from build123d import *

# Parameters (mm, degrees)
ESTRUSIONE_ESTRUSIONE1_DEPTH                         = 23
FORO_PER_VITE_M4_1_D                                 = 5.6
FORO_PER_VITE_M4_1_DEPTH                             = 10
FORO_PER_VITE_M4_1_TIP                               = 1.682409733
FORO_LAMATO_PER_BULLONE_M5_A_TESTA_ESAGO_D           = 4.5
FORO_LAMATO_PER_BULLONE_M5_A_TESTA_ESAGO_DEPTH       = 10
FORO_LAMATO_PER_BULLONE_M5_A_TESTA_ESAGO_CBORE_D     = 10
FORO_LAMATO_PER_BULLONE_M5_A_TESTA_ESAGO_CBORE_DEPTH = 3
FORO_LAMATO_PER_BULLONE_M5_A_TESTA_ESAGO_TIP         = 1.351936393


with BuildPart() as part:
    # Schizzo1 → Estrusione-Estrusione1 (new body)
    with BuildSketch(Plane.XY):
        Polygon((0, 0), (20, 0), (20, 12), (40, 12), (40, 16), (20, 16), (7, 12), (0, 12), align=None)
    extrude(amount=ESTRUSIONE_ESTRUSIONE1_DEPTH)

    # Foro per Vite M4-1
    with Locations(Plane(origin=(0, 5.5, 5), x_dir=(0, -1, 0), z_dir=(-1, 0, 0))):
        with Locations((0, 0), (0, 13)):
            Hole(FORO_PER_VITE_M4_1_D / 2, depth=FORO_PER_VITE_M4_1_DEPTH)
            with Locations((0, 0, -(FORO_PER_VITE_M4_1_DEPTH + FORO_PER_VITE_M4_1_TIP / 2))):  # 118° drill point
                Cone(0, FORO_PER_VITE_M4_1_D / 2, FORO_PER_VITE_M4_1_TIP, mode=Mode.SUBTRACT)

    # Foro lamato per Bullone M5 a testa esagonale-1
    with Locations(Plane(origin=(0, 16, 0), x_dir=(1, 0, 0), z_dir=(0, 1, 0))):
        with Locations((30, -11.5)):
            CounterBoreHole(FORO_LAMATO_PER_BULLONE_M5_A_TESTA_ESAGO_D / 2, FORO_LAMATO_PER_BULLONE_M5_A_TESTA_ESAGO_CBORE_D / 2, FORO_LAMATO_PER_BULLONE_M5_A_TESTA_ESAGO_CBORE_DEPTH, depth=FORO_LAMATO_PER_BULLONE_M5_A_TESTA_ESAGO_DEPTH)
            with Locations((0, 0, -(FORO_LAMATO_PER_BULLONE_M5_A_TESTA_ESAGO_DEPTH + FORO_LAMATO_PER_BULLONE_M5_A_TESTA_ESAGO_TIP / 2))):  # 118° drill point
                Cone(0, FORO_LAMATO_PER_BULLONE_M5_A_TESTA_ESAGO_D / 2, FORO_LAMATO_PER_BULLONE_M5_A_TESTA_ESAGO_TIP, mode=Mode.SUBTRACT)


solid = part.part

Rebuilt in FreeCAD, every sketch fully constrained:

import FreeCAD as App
import Part
import Sketcher
from FreeCAD import Vector


def add_polygon(sketch, points):
    """Adds a closed chain of lines whose ends are joined by coincident constraints."""
    first, n = sketch.GeometryCount, len(points)
    for a, b in zip(points, points[1:] + points[:1]):
        sketch.addGeometry(Part.LineSegment(App.Vector(*a, 0), App.Vector(*b, 0)), False)
    for i in range(n):
        sketch.addConstraint(Sketcher.Constraint("Coincident", first + i, 2, first + (i + 1) % n, 1))

doc = App.newDocument("Part")
params = doc.addObject("Spreadsheet::Sheet", "Params")
for row, (alias, value) in enumerate([
    ("sketch1_width", "20 mm"),
    ("sketch1_width2", "7 mm"),
    ("sketch1_height", "12 mm"),
    ("sketch1_height2", "4 mm"),
    ("pad1_length", "23 mm"),
    ("sketch2_diameter", "5.6 mm"),
    ("hole_diameter", "5.6 mm"),
    ("hole_depth", "10 mm"),
    ("sketch3_diameter", "4.5 mm"),
    ("hole2_diameter", "4.5 mm"),
    ("hole2_depth", "10 mm"),
    ("hole2_cbore_diameter", "10 mm"),
    ("hole2_cbore_depth", "3 mm"),
], start=1):
    params.set(f"A{row}", alias)
    params.set(f"B{row}", "=" + value)
    params.setAlias(f"B{row}", alias)

body = doc.addObject("PartDesign::Body", "Body")

# Sketch on XY plane
sketch1 = body.newObject("Sketcher::SketchObject", "Sketch")
sketch1.AttachmentSupport = (doc.getObject("XY_Plane"), [""])
sketch1.MapMode = "FlatFace"
add_polygon(sketch1, [(0, 0), (20, 0), (20, 12), (40, 12), (40, 16), (20, 16), (7, 12), (0, 12)])  # lines 0-7
sketch1.addConstraint(Sketcher.Constraint("Horizontal", 0))
sketch1.addConstraint(Sketcher.Constraint("Vertical", 1))
sketch1.addConstraint(Sketcher.Constraint("Horizontal", 2))
sketch1.addConstraint(Sketcher.Constraint("Vertical", 3))
sketch1.addConstraint(Sketcher.Constraint("Horizontal", 4))
sketch1.addConstraint(Sketcher.Constraint("Horizontal", 6))
sketch1.addConstraint(Sketcher.Constraint("Vertical", 7))
sketch1.addConstraint(Sketcher.Constraint("Coincident", 7, 2, -1, 1))
sketch1.addConstraint(Sketcher.Constraint("Horizontal", 2, 2, 5, 2))
sketch1.addConstraint(Sketcher.Constraint("Vertical", 1, 2, 4, 2))
sketch1.addConstraint(Sketcher.Constraint("Equal", 0, 2))
sketch1.addConstraint(Sketcher.Constraint("DistanceX", 0, 1, 0, 2, 20.0))
sketch1.addConstraint(Sketcher.Constraint("DistanceX", 6, 2, 6, 1, 7.0))
sketch1.addConstraint(Sketcher.Constraint("DistanceY", 1, 1, 1, 2, 12.0))
sketch1.addConstraint(Sketcher.Constraint("DistanceY", 3, 1, 3, 2, 4.0))
sketch1.setExpression("Constraints[19]", "Params.sketch1_width")
sketch1.setExpression("Constraints[20]", "Params.sketch1_width2")
sketch1.setExpression("Constraints[21]", "Params.sketch1_height")
sketch1.setExpression("Constraints[22]", "Params.sketch1_height2")
pad1 = body.newObject("PartDesign::Pad", "Pad")
pad1.Profile = sketch1
pad1.setExpression("Length", "Params.pad1_length")

# Sketch on YZ plane
sketch2 = body.newObject("Sketcher::SketchObject", "Sketch001")
sketch2.AttachmentSupport = (doc.getObject("YZ_Plane"), [""])
sketch2.MapMode = "FlatFace"
sketch2.addGeometry(Part.Circle(Vector(5.5, 5, 0), Vector(0, 0, 1), 2.8), False)
sketch2.addGeometry(Part.Circle(Vector(5.5, 18, 0), Vector(0, 0, 1), 2.8), False)
sketch2.addConstraint(Sketcher.Constraint("Equal", 0, 1))
sketch2.addConstraint(Sketcher.Constraint("Vertical", 0, 3, 1, 3))
sketch2.addConstraint(Sketcher.Constraint("Diameter", 0, 5.6))
sketch2.addConstraint(Sketcher.Constraint("DistanceY", -1, 1, 0, 3, 5.0))
sketch2.addConstraint(Sketcher.Constraint("DistanceY", -1, 1, 1, 3, 18.0))
sketch2.addConstraint(Sketcher.Constraint("DistanceX", -1, 1, 0, 3, 5.5))
sketch2.setExpression("Constraints[2]", "Params.sketch2_diameter")
doc.recompute()
hole = body.newObject("PartDesign::Hole", "Hole")
hole.Profile = sketch2
hole.ThreadType = "None"
hole.setExpression("Diameter", "Params.hole_diameter")
hole.DepthType = "Dimension"
hole.setExpression("Depth", "Params.hole_depth")
hole.DrillPoint = "Angled"
hole.DrillPointAngle = 118
hole.Reversed = True

# Sketch on XZ plane
sketch3 = body.newObject("Sketcher::SketchObject", "Sketch002")
sketch3.AttachmentSupport = (doc.getObject("XZ_Plane"), [""])
sketch3.MapMode = "FlatFace"
sketch3.AttachmentOffset = App.Placement(Vector(0, 0, -16), App.Rotation())
sketch3.addGeometry(Part.Circle(Vector(30, 11.5, 0), Vector(0, 0, 1), 2.25), False)
sketch3.addConstraint(Sketcher.Constraint("Diameter", 0, 4.5))
sketch3.addConstraint(Sketcher.Constraint("DistanceX", -1, 1, 0, 3, 30.0))
sketch3.addConstraint(Sketcher.Constraint("DistanceY", -1, 1, 0, 3, 11.5))
sketch3.setExpression("Constraints[0]", "Params.sketch3_diameter")
doc.recompute()
hole2 = body.newObject("PartDesign::Hole", "Hole001")
hole2.Profile = sketch3
hole2.ThreadType = "None"
hole2.setExpression("Diameter", "Params.hole2_diameter")
hole2.DepthType = "Dimension"
hole2.setExpression("Depth", "Params.hole2_depth")
hole2.DrillPoint = "Angled"
hole2.DrillPointAngle = 118
hole2.HoleCutType = "Counterbore"
hole2.setExpression("HoleCutDiameter", "Params.hole2_cbore_diameter")
hole2.setExpression("HoleCutDepth", "Params.hole2_cbore_depth")
hole2.Reversed = True

doc.recompute()
